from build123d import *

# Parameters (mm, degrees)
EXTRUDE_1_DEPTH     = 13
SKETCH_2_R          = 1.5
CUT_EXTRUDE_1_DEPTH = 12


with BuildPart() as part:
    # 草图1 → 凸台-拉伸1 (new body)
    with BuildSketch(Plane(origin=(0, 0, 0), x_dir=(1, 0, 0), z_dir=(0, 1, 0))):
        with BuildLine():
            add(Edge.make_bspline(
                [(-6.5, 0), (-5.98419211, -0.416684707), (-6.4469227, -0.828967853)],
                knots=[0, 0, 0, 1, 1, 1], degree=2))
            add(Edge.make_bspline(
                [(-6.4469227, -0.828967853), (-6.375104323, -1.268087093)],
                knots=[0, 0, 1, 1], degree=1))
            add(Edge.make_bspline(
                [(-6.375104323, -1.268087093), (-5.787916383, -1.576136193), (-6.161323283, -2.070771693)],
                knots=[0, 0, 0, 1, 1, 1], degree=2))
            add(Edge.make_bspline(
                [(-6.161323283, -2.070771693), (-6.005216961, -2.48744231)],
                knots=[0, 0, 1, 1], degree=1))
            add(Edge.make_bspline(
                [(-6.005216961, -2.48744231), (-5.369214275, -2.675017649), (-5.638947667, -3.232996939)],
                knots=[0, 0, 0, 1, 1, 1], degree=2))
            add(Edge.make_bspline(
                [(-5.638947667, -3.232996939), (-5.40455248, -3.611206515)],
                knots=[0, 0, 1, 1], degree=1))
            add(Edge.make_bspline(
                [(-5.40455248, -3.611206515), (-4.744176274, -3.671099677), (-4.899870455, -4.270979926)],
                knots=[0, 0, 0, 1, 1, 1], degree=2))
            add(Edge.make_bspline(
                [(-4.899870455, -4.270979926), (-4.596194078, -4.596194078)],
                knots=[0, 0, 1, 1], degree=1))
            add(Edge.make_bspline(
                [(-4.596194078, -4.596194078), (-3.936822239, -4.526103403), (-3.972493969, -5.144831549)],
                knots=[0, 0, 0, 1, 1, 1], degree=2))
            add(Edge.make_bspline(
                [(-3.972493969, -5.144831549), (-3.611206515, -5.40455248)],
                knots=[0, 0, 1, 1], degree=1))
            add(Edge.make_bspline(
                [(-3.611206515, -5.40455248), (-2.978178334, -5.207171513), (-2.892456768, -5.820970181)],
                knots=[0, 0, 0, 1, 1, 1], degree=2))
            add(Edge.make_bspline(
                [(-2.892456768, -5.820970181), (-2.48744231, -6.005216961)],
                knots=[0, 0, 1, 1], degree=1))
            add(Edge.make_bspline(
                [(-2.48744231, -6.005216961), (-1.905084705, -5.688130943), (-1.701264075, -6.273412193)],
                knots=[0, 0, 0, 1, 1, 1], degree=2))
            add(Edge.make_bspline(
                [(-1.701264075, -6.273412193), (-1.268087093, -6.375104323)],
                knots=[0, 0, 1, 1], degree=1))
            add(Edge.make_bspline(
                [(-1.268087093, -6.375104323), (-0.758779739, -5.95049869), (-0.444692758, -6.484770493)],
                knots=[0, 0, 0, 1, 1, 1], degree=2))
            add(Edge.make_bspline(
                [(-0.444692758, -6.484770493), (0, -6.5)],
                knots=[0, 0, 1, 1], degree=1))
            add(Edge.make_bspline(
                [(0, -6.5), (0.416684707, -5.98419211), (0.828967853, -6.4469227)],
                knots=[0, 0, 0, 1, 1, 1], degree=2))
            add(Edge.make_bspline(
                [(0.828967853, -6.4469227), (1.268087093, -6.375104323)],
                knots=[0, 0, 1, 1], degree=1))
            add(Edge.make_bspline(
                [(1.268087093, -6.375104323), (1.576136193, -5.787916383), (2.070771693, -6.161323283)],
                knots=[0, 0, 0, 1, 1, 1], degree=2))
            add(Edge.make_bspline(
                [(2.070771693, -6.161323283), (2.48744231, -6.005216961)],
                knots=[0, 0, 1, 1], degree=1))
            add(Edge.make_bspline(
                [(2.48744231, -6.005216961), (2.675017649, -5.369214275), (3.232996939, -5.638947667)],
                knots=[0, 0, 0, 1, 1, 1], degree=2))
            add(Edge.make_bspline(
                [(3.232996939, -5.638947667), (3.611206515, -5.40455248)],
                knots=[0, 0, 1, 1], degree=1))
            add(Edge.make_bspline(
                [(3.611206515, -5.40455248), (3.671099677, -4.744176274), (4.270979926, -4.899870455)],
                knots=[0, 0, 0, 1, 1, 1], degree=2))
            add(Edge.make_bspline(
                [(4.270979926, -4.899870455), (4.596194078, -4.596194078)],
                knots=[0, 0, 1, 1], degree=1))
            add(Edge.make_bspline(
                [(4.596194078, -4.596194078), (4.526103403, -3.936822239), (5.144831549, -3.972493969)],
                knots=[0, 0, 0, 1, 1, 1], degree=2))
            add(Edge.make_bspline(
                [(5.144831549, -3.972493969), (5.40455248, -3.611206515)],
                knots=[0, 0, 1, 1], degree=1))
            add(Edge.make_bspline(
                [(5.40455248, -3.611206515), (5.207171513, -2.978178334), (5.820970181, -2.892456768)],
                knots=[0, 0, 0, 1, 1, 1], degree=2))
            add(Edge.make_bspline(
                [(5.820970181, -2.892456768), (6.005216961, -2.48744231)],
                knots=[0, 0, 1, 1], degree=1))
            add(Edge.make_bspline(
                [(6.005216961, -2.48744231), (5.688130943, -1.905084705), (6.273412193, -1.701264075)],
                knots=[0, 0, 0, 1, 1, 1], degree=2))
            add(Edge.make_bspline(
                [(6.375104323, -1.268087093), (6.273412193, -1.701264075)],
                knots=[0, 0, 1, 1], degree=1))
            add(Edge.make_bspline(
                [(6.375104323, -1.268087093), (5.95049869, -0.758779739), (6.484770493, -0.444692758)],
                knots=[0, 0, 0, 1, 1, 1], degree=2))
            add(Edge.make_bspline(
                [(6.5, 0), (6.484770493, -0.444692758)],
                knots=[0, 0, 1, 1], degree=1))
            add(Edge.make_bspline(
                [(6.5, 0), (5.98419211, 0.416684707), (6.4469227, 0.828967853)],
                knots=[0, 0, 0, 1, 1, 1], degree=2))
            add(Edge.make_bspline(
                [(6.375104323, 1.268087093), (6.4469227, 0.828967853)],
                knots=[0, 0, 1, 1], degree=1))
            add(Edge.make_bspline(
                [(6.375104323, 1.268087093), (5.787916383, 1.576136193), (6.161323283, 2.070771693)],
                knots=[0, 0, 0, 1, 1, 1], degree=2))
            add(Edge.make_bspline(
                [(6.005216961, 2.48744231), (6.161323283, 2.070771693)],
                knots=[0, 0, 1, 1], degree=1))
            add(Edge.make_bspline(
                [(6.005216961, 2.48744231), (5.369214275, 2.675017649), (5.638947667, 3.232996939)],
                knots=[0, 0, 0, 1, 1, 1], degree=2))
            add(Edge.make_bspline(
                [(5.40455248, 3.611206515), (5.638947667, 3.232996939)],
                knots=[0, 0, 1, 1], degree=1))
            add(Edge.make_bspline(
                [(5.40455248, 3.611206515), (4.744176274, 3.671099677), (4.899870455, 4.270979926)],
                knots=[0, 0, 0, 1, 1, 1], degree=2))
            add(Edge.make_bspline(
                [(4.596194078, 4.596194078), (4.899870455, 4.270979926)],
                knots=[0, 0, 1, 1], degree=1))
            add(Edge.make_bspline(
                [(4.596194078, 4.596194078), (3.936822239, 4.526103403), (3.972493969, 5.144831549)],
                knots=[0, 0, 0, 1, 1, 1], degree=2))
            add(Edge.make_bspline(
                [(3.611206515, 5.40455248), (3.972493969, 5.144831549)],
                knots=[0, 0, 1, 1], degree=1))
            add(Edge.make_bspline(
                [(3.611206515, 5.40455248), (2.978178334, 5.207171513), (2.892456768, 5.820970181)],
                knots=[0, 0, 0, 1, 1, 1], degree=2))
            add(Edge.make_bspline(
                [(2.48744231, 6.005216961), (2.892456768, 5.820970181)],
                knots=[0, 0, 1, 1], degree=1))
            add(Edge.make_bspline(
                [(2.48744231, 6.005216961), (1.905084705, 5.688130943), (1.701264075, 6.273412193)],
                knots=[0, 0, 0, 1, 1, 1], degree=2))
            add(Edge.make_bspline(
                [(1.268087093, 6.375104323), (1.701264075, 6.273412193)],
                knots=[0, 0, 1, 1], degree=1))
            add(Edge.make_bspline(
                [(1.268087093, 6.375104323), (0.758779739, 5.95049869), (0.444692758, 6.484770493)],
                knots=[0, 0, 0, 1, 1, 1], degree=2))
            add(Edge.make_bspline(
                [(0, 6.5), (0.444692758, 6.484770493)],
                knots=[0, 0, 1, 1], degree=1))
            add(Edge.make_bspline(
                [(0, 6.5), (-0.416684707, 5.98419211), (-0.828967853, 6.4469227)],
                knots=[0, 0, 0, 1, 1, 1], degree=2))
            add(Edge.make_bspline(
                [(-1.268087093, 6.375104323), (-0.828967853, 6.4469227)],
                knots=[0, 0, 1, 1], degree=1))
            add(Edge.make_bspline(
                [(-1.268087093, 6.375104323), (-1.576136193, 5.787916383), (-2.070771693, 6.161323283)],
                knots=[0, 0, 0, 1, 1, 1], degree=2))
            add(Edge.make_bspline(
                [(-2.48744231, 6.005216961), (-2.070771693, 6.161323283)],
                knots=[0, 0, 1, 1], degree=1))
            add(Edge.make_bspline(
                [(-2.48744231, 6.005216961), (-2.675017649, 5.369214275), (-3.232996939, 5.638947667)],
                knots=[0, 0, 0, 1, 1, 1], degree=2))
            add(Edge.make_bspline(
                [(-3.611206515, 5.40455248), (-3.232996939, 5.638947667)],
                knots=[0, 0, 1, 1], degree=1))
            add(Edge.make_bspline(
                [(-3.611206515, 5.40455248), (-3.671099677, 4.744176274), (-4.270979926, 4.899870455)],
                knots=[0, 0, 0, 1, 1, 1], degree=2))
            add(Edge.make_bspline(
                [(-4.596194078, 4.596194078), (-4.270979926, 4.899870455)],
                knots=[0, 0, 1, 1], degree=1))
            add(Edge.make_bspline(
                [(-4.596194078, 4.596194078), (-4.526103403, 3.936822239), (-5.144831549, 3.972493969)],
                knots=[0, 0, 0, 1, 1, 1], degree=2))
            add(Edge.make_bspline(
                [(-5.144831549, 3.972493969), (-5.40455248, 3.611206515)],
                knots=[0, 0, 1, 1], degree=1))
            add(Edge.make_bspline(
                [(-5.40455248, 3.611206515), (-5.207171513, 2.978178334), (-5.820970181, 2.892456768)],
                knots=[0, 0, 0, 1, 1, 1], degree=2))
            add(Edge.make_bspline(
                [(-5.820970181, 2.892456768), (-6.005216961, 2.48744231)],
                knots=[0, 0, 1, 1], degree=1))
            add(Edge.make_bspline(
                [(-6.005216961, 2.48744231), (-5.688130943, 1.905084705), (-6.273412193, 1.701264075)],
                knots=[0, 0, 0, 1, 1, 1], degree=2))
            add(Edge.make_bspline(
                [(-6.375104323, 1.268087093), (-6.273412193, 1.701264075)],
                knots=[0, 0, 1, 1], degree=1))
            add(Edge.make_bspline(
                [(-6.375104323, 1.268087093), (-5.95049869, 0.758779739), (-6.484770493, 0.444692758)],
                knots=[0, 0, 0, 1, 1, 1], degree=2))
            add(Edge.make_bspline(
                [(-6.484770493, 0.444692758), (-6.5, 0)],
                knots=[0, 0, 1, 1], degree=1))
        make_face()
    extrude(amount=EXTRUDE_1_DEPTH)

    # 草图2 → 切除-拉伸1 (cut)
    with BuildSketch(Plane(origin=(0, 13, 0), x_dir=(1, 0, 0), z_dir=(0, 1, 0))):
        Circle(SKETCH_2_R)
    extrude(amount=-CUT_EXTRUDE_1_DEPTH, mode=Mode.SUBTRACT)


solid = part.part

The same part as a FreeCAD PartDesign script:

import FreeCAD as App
import Part
import Sketcher
from FreeCAD import Vector

doc = App.newDocument("Part")
body = doc.addObject("PartDesign::Body", "Body")

# Sketch on XZ plane
sketch1 = body.newObject("Sketcher::SketchObject", "Sketch")
sketch1.AttachmentSupport = (doc.getObject("XZ_Plane"), [""])
sketch1.MapMode = "FlatFace"
sketch1.addGeometry([
    Part.BSplineCurve([Vector(-6.5, 0, 0), Vector(-5.984192, 0.416685, 0), Vector(-6.446923, 0.828968, 0)], [3, 3], [0, 1], False, 2, [1, 1, 1], False),  # 0
    Part.BSplineCurve([Vector(-6.446923, 0.828968, 0), Vector(-6.375104, 1.268087, 0)], [2, 2], [0, 1], False, 1, [1, 1], False),  # 1
    Part.BSplineCurve([Vector(-6.375104, 1.268087, 0), Vector(-5.787916, 1.576136, 0), Vector(-6.161323, 2.070772, 0)], [3, 3], [0, 1], False, 2, [1, 1, 1], False),  # 2
    Part.BSplineCurve([Vector(-6.161323, 2.070772, 0), Vector(-6.005217, 2.487442, 0)], [2, 2], [0, 1], False, 1, [1, 1], False),  # 3
    Part.BSplineCurve([Vector(-6.005217, 2.487442, 0), Vector(-5.369214, 2.675018, 0), Vector(-5.638948, 3.232997, 0)], [3, 3], [0, 1], False, 2, [1, 1, 1], False),  # 4
    Part.BSplineCurve([Vector(-5.638948, 3.232997, 0), Vector(-5.404552, 3.611207, 0)], [2, 2], [0, 1], False, 1, [1, 1], False),  # 5
    Part.BSplineCurve([Vector(-5.404552, 3.611207, 0), Vector(-4.744176, 3.6711, 0), Vector(-4.89987, 4.27098, 0)], [3, 3], [0, 1], False, 2, [1, 1, 1], False),  # 6
    Part.BSplineCurve([Vector(-4.89987, 4.27098, 0), Vector(-4.596194, 4.596194, 0)], [2, 2], [0, 1], False, 1, [1, 1], False),  # 7
    Part.BSplineCurve([Vector(-4.596194, 4.596194, 0), Vector(-3.936822, 4.526103, 0), Vector(-3.972494, 5.144832, 0)], [3, 3], [0, 1], False, 2, [1, 1, 1], False),  # 8
    Part.BSplineCurve([Vector(-3.972494, 5.144832, 0), Vector(-3.611207, 5.404552, 0)], [2, 2], [0, 1], False, 1, [1, 1], False),  # 9
    Part.BSplineCurve([Vector(-3.611207, 5.404552, 0), Vector(-2.978178, 5.207172, 0), Vector(-2.892457, 5.82097, 0)], [3, 3], [0, 1], False, 2, [1, 1, 1], False),  # 10
    Part.BSplineCurve([Vector(-2.892457, 5.82097, 0), Vector(-2.487442, 6.005217, 0)], [2, 2], [0, 1], False, 1, [1, 1], False),  # 11
    Part.BSplineCurve([Vector(-2.487442, 6.005217, 0), Vector(-1.905085, 5.688131, 0), Vector(-1.701264, 6.273412, 0)], [3, 3], [0, 1], False, 2, [1, 1, 1], False),  # 12
    Part.BSplineCurve([Vector(-1.701264, 6.273412, 0), Vector(-1.268087, 6.375104, 0)], [2, 2], [0, 1], False, 1, [1, 1], False),  # 13
    Part.BSplineCurve([Vector(-1.268087, 6.375104, 0), Vector(-0.75878, 5.950499, 0), Vector(-0.444693, 6.48477, 0)], [3, 3], [0, 1], False, 2, [1, 1, 1], False),  # 14
    Part.BSplineCurve([Vector(-0.444693, 6.48477, 0), Vector(0, 6.5, 0)], [2, 2], [0, 1], False, 1, [1, 1], False),  # 15
    Part.BSplineCurve([Vector(0, 6.5, 0), Vector(0.416685, 5.984192, 0), Vector(0.828968, 6.446923, 0)], [3, 3], [0, 1], False, 2, [1, 1, 1], False),  # 16
    Part.BSplineCurve([Vector(0.828968, 6.446923, 0), Vector(1.268087, 6.375104, 0)], [2, 2], [0, 1], False, 1, [1, 1], False),  # 17
    Part.BSplineCurve([Vector(1.268087, 6.375104, 0), Vector(1.576136, 5.787916, 0), Vector(2.070772, 6.161323, 0)], [3, 3], [0, 1], False, 2, [1, 1, 1], False),  # 18
    Part.BSplineCurve([Vector(2.070772, 6.161323, 0), Vector(2.487442, 6.005217, 0)], [2, 2], [0, 1], False, 1, [1, 1], False),  # 19
    Part.BSplineCurve([Vector(2.487442, 6.005217, 0), Vector(2.675018, 5.369214, 0), Vector(3.232997, 5.638948, 0)], [3, 3], [0, 1], False, 2, [1, 1, 1], False),  # 20
    Part.BSplineCurve([Vector(3.232997, 5.638948, 0), Vector(3.611207, 5.404552, 0)], [2, 2], [0, 1], False, 1, [1, 1], False),  # 21
    Part.BSplineCurve([Vector(3.611207, 5.404552, 0), Vector(3.6711, 4.744176, 0), Vector(4.27098, 4.89987, 0)], [3, 3], [0, 1], False, 2, [1, 1, 1], False),  # 22
    Part.BSplineCurve([Vector(4.27098, 4.89987, 0), Vector(4.596194, 4.596194, 0)], [2, 2], [0, 1], False, 1, [1, 1], False),  # 23
    Part.BSplineCurve([Vector(4.596194, 4.596194, 0), Vector(4.526103, 3.936822, 0), Vector(5.144832, 3.972494, 0)], [3, 3], [0, 1], False, 2, [1, 1, 1], False),  # 24
    Part.BSplineCurve([Vector(5.144832, 3.972494, 0), Vector(5.404552, 3.611207, 0)], [2, 2], [0, 1], False, 1, [1, 1], False),  # 25
    Part.BSplineCurve([Vector(5.404552, 3.611207, 0), Vector(5.207172, 2.978178, 0), Vector(5.82097, 2.892457, 0)], [3, 3], [0, 1], False, 2, [1, 1, 1], False),  # 26
    Part.BSplineCurve([Vector(5.82097, 2.892457, 0), Vector(6.005217, 2.487442, 0)], [2, 2], [0, 1], False, 1, [1, 1], False),  # 27
    Part.BSplineCurve([Vector(6.005217, 2.487442, 0), Vector(5.688131, 1.905085, 0), Vector(6.273412, 1.701264, 0)], [3, 3], [0, 1], False, 2, [1, 1, 1], False),  # 28
    Part.BSplineCurve([Vector(6.375104, 1.268087, 0), Vector(6.273412, 1.701264, 0)], [2, 2], [0, 1], False, 1, [1, 1], False),  # 29
    Part.BSplineCurve([Vector(6.375104, 1.268087, 0), Vector(5.950499, 0.75878, 0), Vector(6.48477, 0.444693, 0)], [3, 3], [0, 1], False, 2, [1, 1, 1], False),  # 30
    Part.BSplineCurve([Vector(6.5, 0, 0), Vector(6.48477, 0.444693, 0)], [2, 2], [0, 1], False, 1, [1, 1], False),  # 31
    Part.BSplineCurve([Vector(6.5, 0, 0), Vector(5.984192, -0.416685, 0), Vector(6.446923, -0.828968, 0)], [3, 3], [0, 1], False, 2, [1, 1, 1], False),  # 32
    Part.BSplineCurve([Vector(6.375104, -1.268087, 0), Vector(6.446923, -0.828968, 0)], [2, 2], [0, 1], False, 1, [1, 1], False),  # 33
    Part.BSplineCurve([Vector(6.375104, -1.268087, 0), Vector(5.787916, -1.576136, 0), Vector(6.161323, -2.070772, 0)], [3, 3], [0, 1], False, 2, [1, 1, 1], False),  # 34
    Part.BSplineCurve([Vector(6.005217, -2.487442, 0), Vector(6.161323, -2.070772, 0)], [2, 2], [0, 1], False, 1, [1, 1], False),  # 35
    Part.BSplineCurve([Vector(6.005217, -2.487442, 0), Vector(5.369214, -2.675018, 0), Vector(5.638948, -3.232997, 0)], [3, 3], [0, 1], False, 2, [1, 1, 1], False),  # 36
    Part.BSplineCurve([Vector(5.404552, -3.611207, 0), Vector(5.638948, -3.232997, 0)], [2, 2], [0, 1], False, 1, [1, 1], False),  # 37
    Part.BSplineCurve([Vector(5.404552, -3.611207, 0), Vector(4.744176, -3.6711, 0), Vector(4.89987, -4.27098, 0)], [3, 3], [0, 1], False, 2, [1, 1, 1], False),  # 38
    Part.BSplineCurve([Vector(4.596194, -4.596194, 0), Vector(4.89987, -4.27098, 0)], [2, 2], [0, 1], False, 1, [1, 1], False),  # 39
    Part.BSplineCurve([Vector(4.596194, -4.596194, 0), Vector(3.936822, -4.526103, 0), Vector(3.972494, -5.144832, 0)], [3, 3], [0, 1], False, 2, [1, 1, 1], False),  # 40
    Part.BSplineCurve([Vector(3.611207, -5.404552, 0), Vector(3.972494, -5.144832, 0)], [2, 2], [0, 1], False, 1, [1, 1], False),  # 41
    Part.BSplineCurve([Vector(3.611207, -5.404552, 0), Vector(2.978178, -5.207172, 0), Vector(2.892457, -5.82097, 0)], [3, 3], [0, 1], False, 2, [1, 1, 1], False),  # 42
    Part.BSplineCurve([Vector(2.487442, -6.005217, 0), Vector(2.892457, -5.82097, 0)], [2, 2], [0, 1], False, 1, [1, 1], False),  # 43
    Part.BSplineCurve([Vector(2.487442, -6.005217, 0), Vector(1.905085, -5.688131, 0), Vector(1.701264, -6.273412, 0)], [3, 3], [0, 1], False, 2, [1, 1, 1], False),  # 44
    Part.BSplineCurve([Vector(1.268087, -6.375104, 0), Vector(1.701264, -6.273412, 0)], [2, 2], [0, 1], False, 1, [1, 1], False),  # 45
    Part.BSplineCurve([Vector(1.268087, -6.375104, 0), Vector(0.75878, -5.950499, 0), Vector(0.444693, -6.48477, 0)], [3, 3], [0, 1], False, 2, [1, 1, 1], False),  # 46
    Part.BSplineCurve([Vector(0, -6.5, 0), Vector(0.444693, -6.48477, 0)], [2, 2], [0, 1], False, 1, [1, 1], False),  # 47
    Part.BSplineCurve([Vector(0, -6.5, 0), Vector(-0.416685, -5.984192, 0), Vector(-0.828968, -6.446923, 0)], [3, 3], [0, 1], False, 2, [1, 1, 1], False),  # 48
    Part.BSplineCurve([Vector(-1.268087, -6.375104, 0), Vector(-0.828968, -6.446923, 0)], [2, 2], [0, 1], False, 1, [1, 1], False),  # 49
    Part.BSplineCurve([Vector(-1.268087, -6.375104, 0), Vector(-1.576136, -5.787916, 0), Vector(-2.070772, -6.161323, 0)], [3, 3], [0, 1], False, 2, [1, 1, 1], False),  # 50
    Part.BSplineCurve([Vector(-2.487442, -6.005217, 0), Vector(-2.070772, -6.161323, 0)], [2, 2], [0, 1], False, 1, [1, 1], False),  # 51
    Part.BSplineCurve([Vector(-2.487442, -6.005217, 0), Vector(-2.675018, -5.369214, 0), Vector(-3.232997, -5.638948, 0)], [3, 3], [0, 1], False, 2, [1, 1, 1], False),  # 52
    Part.BSplineCurve([Vector(-3.611207, -5.404552, 0), Vector(-3.232997, -5.638948, 0)], [2, 2], [0, 1], False, 1, [1, 1], False),  # 53
    Part.BSplineCurve([Vector(-3.611207, -5.404552, 0), Vector(-3.6711, -4.744176, 0), Vector(-4.27098, -4.89987, 0)], [3, 3], [0, 1], False, 2, [1, 1, 1], False),  # 54
    Part.BSplineCurve([Vector(-4.596194, -4.596194, 0), Vector(-4.27098, -4.89987, 0)], [2, 2], [0, 1], False, 1, [1, 1], False),  # 55
    Part.BSplineCurve([Vector(-4.596194, -4.596194, 0), Vector(-4.526103, -3.936822, 0), Vector(-5.144832, -3.972494, 0)], [3, 3], [0, 1], False, 2, [1, 1, 1], False),  # 56
    Part.BSplineCurve([Vector(-5.144832, -3.972494, 0), Vector(-5.404552, -3.611207, 0)], [2, 2], [0, 1], False, 1, [1, 1], False),  # 57
    Part.BSplineCurve([Vector(-5.404552, -3.611207, 0), Vector(-5.207172, -2.978178, 0), Vector(-5.82097, -2.892457, 0)], [3, 3], [0, 1], False, 2, [1, 1, 1], False),  # 58
    Part.BSplineCurve([Vector(-5.82097, -2.892457, 0), Vector(-6.005217, -2.487442, 0)], [2, 2], [0, 1], False, 1, [1, 1], False),  # 59
    Part.BSplineCurve([Vector(-6.005217, -2.487442, 0), Vector(-5.688131, -1.905085, 0), Vector(-6.273412, -1.701264, 0)], [3, 3], [0, 1], False, 2, [1, 1, 1], False),  # 60
    Part.BSplineCurve([Vector(-6.375104, -1.268087, 0), Vector(-6.273412, -1.701264, 0)], [2, 2], [0, 1], False, 1, [1, 1], False),  # 61
    Part.BSplineCurve([Vector(-6.375104, -1.268087, 0), Vector(-5.950499, -0.75878, 0), Vector(-6.48477, -0.444693, 0)], [3, 3], [0, 1], False, 2, [1, 1, 1], False),  # 62
    Part.BSplineCurve([Vector(-6.48477, -0.444693, 0), Vector(-6.5, 0, 0)], [2, 2], [0, 1], False, 1, [1, 1], False),  # 63
], False)
sketch1.addConstraint([
    Sketcher.Constraint("Block", 0),
    Sketcher.Constraint("Block", 1),
    Sketcher.Constraint("Block", 2),
    Sketcher.Constraint("Block", 3),
    Sketcher.Constraint("Block", 4),
    Sketcher.Constraint("Block", 5),
    Sketcher.Constraint("Block", 6),
    Sketcher.Constraint("Block", 7),
    Sketcher.Constraint("Block", 8),
    Sketcher.Constraint("Block", 9),
    Sketcher.Constraint("Block", 10),
    Sketcher.Constraint("Block", 11),
    Sketcher.Constraint("Block", 12),
    Sketcher.Constraint("Block", 13),
    Sketcher.Constraint("Block", 14),
    Sketcher.Constraint("Block", 15),
    Sketcher.Constraint("Block", 16),
    Sketcher.Constraint("Block", 17),
    Sketcher.Constraint("Block", 18),
    Sketcher.Constraint("Block", 19),
    Sketcher.Constraint("Block", 20),
    Sketcher.Constraint("Block", 21),
    Sketcher.Constraint("Block", 22),
    Sketcher.Constraint("Block", 23),
    Sketcher.Constraint("Block", 24),
    Sketcher.Constraint("Block", 25),
    Sketcher.Constraint("Block", 26),
    Sketcher.Constraint("Block", 27),
    Sketcher.Constraint("Block", 28),
    Sketcher.Constraint("Block", 29),
    Sketcher.Constraint("Block", 30),
    Sketcher.Constraint("Block", 31),
    Sketcher.Constraint("Block", 32),
    Sketcher.Constraint("Block", 33),
    Sketcher.Constraint("Block", 34),
    Sketcher.Constraint("Block", 35),
    Sketcher.Constraint("Block", 36),
    Sketcher.Constraint("Block", 37),
    Sketcher.Constraint("Block", 38),
    Sketcher.Constraint("Block", 39),
    Sketcher.Constraint("Block", 40),
    Sketcher.Constraint("Block", 41),
    Sketcher.Constraint("Block", 42),
    Sketcher.Constraint("Block", 43),
    Sketcher.Constraint("Block", 44),
    Sketcher.Constraint("Block", 45),
    Sketcher.Constraint("Block", 46),
    Sketcher.Constraint("Block", 47),
    Sketcher.Constraint("Block", 48),
    Sketcher.Constraint("Block", 49),
    Sketcher.Constraint("Block", 50),
    Sketcher.Constraint("Block", 51),
    Sketcher.Constraint("Block", 52),
    Sketcher.Constraint("Block", 53),
    Sketcher.Constraint("Block", 54),
    Sketcher.Constraint("Block", 55),
    Sketcher.Constraint("Block", 56),
    Sketcher.Constraint("Block", 57),
    Sketcher.Constraint("Block", 58),
    Sketcher.Constraint("Block", 59),
    Sketcher.Constraint("Block", 60),
    Sketcher.Constraint("Block", 61),
    Sketcher.Constraint("Block", 62),
    Sketcher.Constraint("Block", 63),
])
pad1 = body.newObject("PartDesign::Pad", "Pad")
pad1.Profile = sketch1
pad1.Length = 13
pad1.Reversed = True

# Sketch on XZ plane
sketch2 = body.newObject("Sketcher::SketchObject", "Sketch001")
sketch2.AttachmentSupport = (doc.getObject("XZ_Plane"), [""])
sketch2.MapMode = "FlatFace"
sketch2.AttachmentOffset = App.Placement(Vector(0, 0, -13), App.Rotation())
sketch2.addGeometry(Part.Circle(Vector(0, 0, 0), Vector(0, 0, 1), 1.5), False)
sketch2.addConstraint([
    Sketcher.Constraint("Coincident", 0, 3, -1, 1),
    Sketcher.Constraint("Diameter", 0, 3.0),
])
pocket1 = body.newObject("PartDesign::Pocket", "Pocket")
pocket1.Profile = sketch2
pocket1.Length = 12
pocket1.Reversed = True

doc.recompute()
